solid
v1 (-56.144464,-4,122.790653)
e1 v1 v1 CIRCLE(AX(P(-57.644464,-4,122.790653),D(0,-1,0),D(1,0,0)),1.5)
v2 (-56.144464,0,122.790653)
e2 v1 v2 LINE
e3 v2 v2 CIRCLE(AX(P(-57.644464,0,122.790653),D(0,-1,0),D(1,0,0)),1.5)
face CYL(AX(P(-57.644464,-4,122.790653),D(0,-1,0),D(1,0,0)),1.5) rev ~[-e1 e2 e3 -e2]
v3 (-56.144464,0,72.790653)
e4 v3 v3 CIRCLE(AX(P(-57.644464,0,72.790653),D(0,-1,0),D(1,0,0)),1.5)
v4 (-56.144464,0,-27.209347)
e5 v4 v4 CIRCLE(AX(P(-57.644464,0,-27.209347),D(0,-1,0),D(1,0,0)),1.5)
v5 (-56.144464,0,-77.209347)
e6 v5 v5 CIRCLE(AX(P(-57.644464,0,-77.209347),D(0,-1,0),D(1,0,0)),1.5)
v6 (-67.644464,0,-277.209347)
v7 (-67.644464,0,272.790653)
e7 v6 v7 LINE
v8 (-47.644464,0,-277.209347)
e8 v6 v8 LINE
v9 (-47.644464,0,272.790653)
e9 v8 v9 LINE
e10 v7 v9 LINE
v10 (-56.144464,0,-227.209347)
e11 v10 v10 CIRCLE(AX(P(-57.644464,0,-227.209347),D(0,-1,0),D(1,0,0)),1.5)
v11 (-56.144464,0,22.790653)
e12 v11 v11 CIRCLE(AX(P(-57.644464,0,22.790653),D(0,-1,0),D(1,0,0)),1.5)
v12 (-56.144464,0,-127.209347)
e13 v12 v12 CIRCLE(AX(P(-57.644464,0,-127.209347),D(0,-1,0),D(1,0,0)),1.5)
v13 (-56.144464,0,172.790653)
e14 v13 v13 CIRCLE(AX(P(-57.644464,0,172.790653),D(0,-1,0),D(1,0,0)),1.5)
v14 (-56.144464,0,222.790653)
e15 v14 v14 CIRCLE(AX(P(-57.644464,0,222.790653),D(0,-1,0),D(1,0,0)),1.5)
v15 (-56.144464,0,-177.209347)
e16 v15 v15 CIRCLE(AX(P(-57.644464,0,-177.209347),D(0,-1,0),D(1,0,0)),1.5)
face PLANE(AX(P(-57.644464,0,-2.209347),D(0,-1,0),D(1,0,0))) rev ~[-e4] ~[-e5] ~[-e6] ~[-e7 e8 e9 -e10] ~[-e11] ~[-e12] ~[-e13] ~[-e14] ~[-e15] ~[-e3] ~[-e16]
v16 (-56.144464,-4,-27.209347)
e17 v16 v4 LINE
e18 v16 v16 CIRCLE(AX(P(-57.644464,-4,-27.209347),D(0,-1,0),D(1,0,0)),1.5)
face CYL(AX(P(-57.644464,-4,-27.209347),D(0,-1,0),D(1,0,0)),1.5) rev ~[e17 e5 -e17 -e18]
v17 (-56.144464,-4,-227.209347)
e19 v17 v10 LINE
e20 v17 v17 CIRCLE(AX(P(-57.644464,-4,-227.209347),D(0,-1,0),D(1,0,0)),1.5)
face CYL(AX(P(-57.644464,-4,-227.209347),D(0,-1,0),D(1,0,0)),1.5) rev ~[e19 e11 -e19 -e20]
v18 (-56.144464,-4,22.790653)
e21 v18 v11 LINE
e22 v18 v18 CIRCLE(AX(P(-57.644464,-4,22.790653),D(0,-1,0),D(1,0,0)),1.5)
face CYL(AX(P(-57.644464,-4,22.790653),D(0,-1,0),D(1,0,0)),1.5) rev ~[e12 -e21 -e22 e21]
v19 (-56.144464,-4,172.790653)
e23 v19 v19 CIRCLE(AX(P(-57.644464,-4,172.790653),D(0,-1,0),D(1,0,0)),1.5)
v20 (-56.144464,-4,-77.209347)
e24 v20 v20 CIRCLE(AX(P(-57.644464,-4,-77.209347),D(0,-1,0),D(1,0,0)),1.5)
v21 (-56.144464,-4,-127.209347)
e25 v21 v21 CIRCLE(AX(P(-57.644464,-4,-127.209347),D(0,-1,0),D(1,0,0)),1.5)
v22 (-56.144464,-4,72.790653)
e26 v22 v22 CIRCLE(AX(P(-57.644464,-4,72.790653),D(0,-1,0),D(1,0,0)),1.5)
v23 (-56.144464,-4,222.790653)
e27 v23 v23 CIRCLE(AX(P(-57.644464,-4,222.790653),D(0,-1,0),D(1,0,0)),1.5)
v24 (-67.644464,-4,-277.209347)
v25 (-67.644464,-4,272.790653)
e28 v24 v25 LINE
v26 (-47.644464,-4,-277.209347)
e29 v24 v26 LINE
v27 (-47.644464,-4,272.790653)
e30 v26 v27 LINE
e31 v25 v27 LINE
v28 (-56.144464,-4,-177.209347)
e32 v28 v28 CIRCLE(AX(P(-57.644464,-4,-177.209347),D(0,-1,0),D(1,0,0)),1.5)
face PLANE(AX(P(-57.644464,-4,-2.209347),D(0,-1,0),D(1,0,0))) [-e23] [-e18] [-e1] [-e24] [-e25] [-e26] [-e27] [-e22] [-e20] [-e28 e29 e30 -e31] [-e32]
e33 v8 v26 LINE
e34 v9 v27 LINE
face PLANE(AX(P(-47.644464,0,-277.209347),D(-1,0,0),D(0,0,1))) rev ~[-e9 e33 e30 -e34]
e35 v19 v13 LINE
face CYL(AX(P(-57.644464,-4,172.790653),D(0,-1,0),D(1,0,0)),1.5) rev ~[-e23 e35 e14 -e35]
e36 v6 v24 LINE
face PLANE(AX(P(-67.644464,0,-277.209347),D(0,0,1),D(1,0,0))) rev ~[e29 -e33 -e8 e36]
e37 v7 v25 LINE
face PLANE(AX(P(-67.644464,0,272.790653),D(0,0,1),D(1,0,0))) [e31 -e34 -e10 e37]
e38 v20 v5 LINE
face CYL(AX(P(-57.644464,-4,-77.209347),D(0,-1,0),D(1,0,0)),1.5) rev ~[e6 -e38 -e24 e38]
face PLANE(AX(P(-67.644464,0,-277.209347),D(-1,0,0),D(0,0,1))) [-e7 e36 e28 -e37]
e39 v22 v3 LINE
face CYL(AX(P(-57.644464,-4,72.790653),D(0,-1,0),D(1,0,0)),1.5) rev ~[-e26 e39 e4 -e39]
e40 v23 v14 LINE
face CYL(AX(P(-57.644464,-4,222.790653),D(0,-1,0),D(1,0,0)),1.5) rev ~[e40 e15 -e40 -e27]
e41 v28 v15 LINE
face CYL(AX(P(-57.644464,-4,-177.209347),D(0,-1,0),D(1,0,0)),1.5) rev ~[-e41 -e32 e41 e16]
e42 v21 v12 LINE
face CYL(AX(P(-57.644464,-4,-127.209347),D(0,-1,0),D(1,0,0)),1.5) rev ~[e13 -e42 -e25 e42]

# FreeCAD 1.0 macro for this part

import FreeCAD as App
import Part
import Sketcher
Q = App.Units.Quantity

doc = App.newDocument("Part")
params = doc.addObject("Spreadsheet::Sheet", "Params")
for row, (alias, value) in enumerate([
    ("sketch1_width", "20 mm"),
    ("sketch1_height", "550 mm"),
    ("pad1_length", "4 mm"),
    ("sketch2_diameter", "3 mm"),
    ("pocket1_length", "25 mm"),
], start=1):
    params.set(f"A{row}", alias)
    params.set(f"B{row}", "=" + value)
    params.setAlias(f"B{row}", alias)

body = doc.addObject("PartDesign::Body", "Body")

# Sketch on XZ plane
sketch1 = body.newObject("Sketcher::SketchObject", "Sketch")
sketch1.AttachmentSupport = (doc.getObject("XZ_Plane"), [""])
sketch1.MapMode = "FlatFace"
sketch1.addGeometry(Part.LineSegment(App.Vector(-68, 273, 0), App.Vector(-68, -277, 0)), False)
sketch1.addGeometry(Part.LineSegment(App.Vector(-68, -277, 0), App.Vector(-48, -277, 0)), False)
sketch1.addGeometry(Part.LineSegment(App.Vector(-48, -277, 0), App.Vector(-48, 273, 0)), False)
sketch1.addGeometry(Part.LineSegment(App.Vector(-48, 273, 0), App.Vector(-68, 273, 0)), False)
sketch1.addConstraint(Sketcher.Constraint("Coincident", 0, 2, 1, 1))
sketch1.addConstraint(Sketcher.Constraint("Coincident", 1, 2, 2, 1))
sketch1.addConstraint(Sketcher.Constraint("Coincident", 2, 2, 3, 1))
sketch1.addConstraint(Sketcher.Constraint("Coincident", 3, 2, 0, 1))
sketch1.addConstraint(Sketcher.Constraint("Vertical", 0))
sketch1.addConstraint(Sketcher.Constraint("Horizontal", 1))
sketch1.addConstraint(Sketcher.Constraint("Vertical", 2))
sketch1.addConstraint(Sketcher.Constraint("Horizontal", 3))
sketch1.addConstraint(Sketcher.Constraint("DistanceX", 1, 1, 1, 2, Q("20 mm")))
sketch1.addConstraint(Sketcher.Constraint("DistanceY", 0, 2, 0, 1, Q("550 mm")))
sketch1.addConstraint(Sketcher.Constraint("DistanceX", 0, 2, -1, 1, Q("67.644464 mm")))
sketch1.addConstraint(Sketcher.Constraint("DistanceY", 0, 2, -1, 1, Q("277.209347 mm")))
sketch1.setExpression("Constraints[8]", "Params.sketch1_width")
sketch1.setExpression("Constraints[9]", "Params.sketch1_height")
pad1 = body.newObject("PartDesign::Pad", "Pad")
pad1.Profile = sketch1
pad1.setExpression("Length", "Params.pad1_length")

# Sketch on XZ plane
sketch2 = body.newObject("Sketcher::SketchObject", "Sketch001")
sketch2.AttachmentSupport = (doc.getObject("XZ_Plane"), [""])
sketch2.MapMode = "FlatFace"
sketch2.AttachmentOffset = App.Placement(App.Vector(0, 0, 4), App.Rotation())
sketch2.addGeometry(Part.Circle(App.Vector(-32.6, 172.8, 0), App.Vector(0, 0, 1), 1.5), False)
sketch2.addGeometry(Part.Circle(App.Vector(-32.6, 122.8, 0), App.Vector(0, 0, 1), 1.5), False)
sketch2.addGeometry(Part.Circle(App.Vector(-57.6, 122.8, 0), App.Vector(0, 0, 1), 1.5), False)
sketch2.addGeometry(Part.Circle(App.Vector(-7.6, 222.8, 0), App.Vector(0, 0, 1), 1.5), False)
sketch2.addGeometry(Part.Circle(App.Vector(-7.6, 172.8, 0), App.Vector(0, 0, 1), 1.5), False)
sketch2.addGeometry(Part.Circle(App.Vector(-7.6, 122.8, 0), App.Vector(0, 0, 1), 1.5), False)
sketch2.addGeometry(Part.Circle(App.Vector(-57.6, 172.8, 0), App.Vector(0, 0, 1), 1.5), False)
sketch2.addGeometry(Part.Circle(App.Vector(-32.6, 222.8, 0), App.Vector(0, 0, 1), 1.5), False)
sketch2.addGeometry(Part.Circle(App.Vector(-57.6, 222.8, 0), App.Vector(0, 0, 1), 1.5), False)
sketch2.addGeometry(Part.Circle(App.Vector(-57.6, -27.2, 0), App.Vector(0, 0, 1), 1.5), False)
sketch2.addGeometry(Part.Circle(App.Vector(-32.6, -77.2, 0), App.Vector(0, 0, 1), 1.5), False)
sketch2.addGeometry(Part.Circle(App.Vector(-57.6, -127.2, 0), App.Vector(0, 0, 1), 1.5), False)
sketch2.addGeometry(Part.Circle(App.Vector(-57.6, -77.2, 0), App.Vector(0, 0, 1), 1.5), False)
sketch2.addGeometry(Part.Circle(App.Vector(-57.6, -227.2, 0), App.Vector(0, 0, 1), 1.5), False)
sketch2.addGeometry(Part.Circle(App.Vector(-57.6, 72.8, 0), App.Vector(0, 0, 1), 1.5), False)
sketch2.addGeometry(Part.Circle(App.Vector(-57.6, 22.8, 0), App.Vector(0, 0, 1), 1.5), False)
sketch2.addGeometry(Part.Circle(App.Vector(-57.6, -177.2, 0), App.Vector(0, 0, 1), 1.5), False)
sketch2.addGeometry(Part.Circle(App.Vector(-32.6, -27.2, 0), App.Vector(0, 0, 1), 1.5), False)
sketch2.addGeometry(Part.Circle(App.Vector(-32.6, 72.8, 0), App.Vector(0, 0, 1), 1.5), False)
sketch2.addGeometry(Part.Circle(App.Vector(-32.6, 22.8, 0), App.Vector(0, 0, 1), 1.5), False)
sketch2.addGeometry(Part.Circle(App.Vector(-32.6, -127.2, 0), App.Vector(0, 0, 1), 1.5), False)
sketch2.addGeometry(Part.Circle(App.Vector(-7.6, -227.2, 0), App.Vector(0, 0, 1), 1.5), False)
sketch2.addGeometry(Part.Circle(App.Vector(-32.6, -177.2, 0), App.Vector(0, 0, 1), 1.5), False)
sketch2.addGeometry(Part.Circle(App.Vector(-7.6, -177.2, 0), App.Vector(0, 0, 1), 1.5), False)
sketch2.addGeometry(Part.Circle(App.Vector(-32.6, -227.2, 0), App.Vector(0, 0, 1), 1.5), False)
sketch2.addGeometry(Part.Circle(App.Vector(-7.6, -127.2, 0), App.Vector(0, 0, 1), 1.5), False)
sketch2.addGeometry(Part.Circle(App.Vector(-7.6, -77.2, 0), App.Vector(0, 0, 1), 1.5), False)
sketch2.addGeometry(Part.Circle(App.Vector(-7.6, -27.2, 0), App.Vector(0, 0, 1), 1.5), False)
sketch2.addGeometry(Part.Circle(App.Vector(-7.6, 22.8, 0), App.Vector(0, 0, 1), 1.5), False)
sketch2.addGeometry(Part.Circle(App.Vector(-7.6, 72.8, 0), App.Vector(0, 0, 1), 1.5), False)
sketch2.addConstraint(Sketcher.Constraint("Equal", 0, 1))
sketch2.addConstraint(Sketcher.Constraint("Equal", 1, 2))
sketch2.addConstraint(Sketcher.Constraint("Equal", 2, 3))
sketch2.addConstraint(Sketcher.Constraint("Equal", 3, 4))
sketch2.addConstraint(Sketcher.Constraint("Equal", 4, 5))
sketch2.addConstraint(Sketcher.Constraint("Equal", 5, 6))
sketch2.addConstraint(Sketcher.Constraint("Equal", 6, 7))
sketch2.addConstraint(Sketcher.Constraint("Equal", 7, 8))
sketch2.addConstraint(Sketcher.Constraint("Equal", 8, 9))
sketch2.addConstraint(Sketcher.Constraint("Equal", 9, 10))
sketch2.addConstraint(Sketcher.Constraint("Equal", 10, 11))
sketch2.addConstraint(Sketcher.Constraint("Equal", 11, 12))
sketch2.addConstraint(Sketcher.Constraint("Equal", 12, 13))
sketch2.addConstraint(Sketcher.Constraint("Equal", 13, 14))
sketch2.addConstraint(Sketcher.Constraint("Equal", 14, 15))
sketch2.addConstraint(Sketcher.Constraint("Equal", 15, 16))
sketch2.addConstraint(Sketcher.Constraint("Equal", 16, 17))
sketch2.addConstraint(Sketcher.Constraint("Equal", 17, 18))
sketch2.addConstraint(Sketcher.Constraint("Equal", 18, 19))
sketch2.addConstraint(Sketcher.Constraint("Equal", 19, 20))
sketch2.addConstraint(Sketcher.Constraint("Equal", 20, 21))
sketch2.addConstraint(Sketcher.Constraint("Equal", 21, 22))
sketch2.addConstraint(Sketcher.Constraint("Equal", 22, 23))
sketch2.addConstraint(Sketcher.Constraint("Equal", 23, 24))
sketch2.addConstraint(Sketcher.Constraint("Equal", 24, 25))
sketch2.addConstraint(Sketcher.Constraint("Equal", 25, 26))
sketch2.addConstraint(Sketcher.Constraint("Equal", 26, 27))
sketch2.addConstraint(Sketcher.Constraint("Equal", 27, 28))
sketch2.addConstraint(Sketcher.Constraint("Equal", 28, 29))
sketch2.addConstraint(Sketcher.Constraint("Horizontal", 1, 3, 2, 3))
sketch2.addConstraint(Sketcher.Constraint("Horizontal", 0, 3, 4, 3))
sketch2.addConstraint(Sketcher.Constraint("Horizontal", 2, 3, 5, 3))
sketch2.addConstraint(Sketcher.Constraint("Horizontal", 4, 3, 6, 3))
sketch2.addConstraint(Sketcher.Constraint("Horizontal", 3, 3, 7, 3))
sketch2.addConstraint(Sketcher.Constraint("Horizontal", 7, 3, 8, 3))
sketch2.addConstraint(Sketcher.Constraint("Horizontal", 10, 3, 12, 3))
sketch2.addConstraint(Sketcher.Constraint("Horizontal", 9, 3, 17, 3))
sketch2.addConstraint(Sketcher.Constraint("Horizontal", 14, 3, 18, 3))
sketch2.addConstraint(Sketcher.Constraint("Horizontal", 15, 3, 19, 3))
sketch2.addConstraint(Sketcher.Constraint("Horizontal", 11, 3, 20, 3))
sketch2.addConstraint(Sketcher.Constraint("Horizontal", 13, 3, 21, 3))
sketch2.addConstraint(Sketcher.Constraint("Horizontal", 16, 3, 22, 3))
sketch2.addConstraint(Sketcher.Constraint("Horizontal", 22, 3, 23, 3))
sketch2.addConstraint(Sketcher.Constraint("Horizontal", 21, 3, 24, 3))
sketch2.addConstraint(Sketcher.Constraint("Horizontal", 20, 3, 25, 3))
sketch2.addConstraint(Sketcher.Constraint("Horizontal", 12, 3, 26, 3))
sketch2.addConstraint(Sketcher.Constraint("Horizontal", 17, 3, 27, 3))
sketch2.addConstraint(Sketcher.Constraint("Horizontal", 19, 3, 28, 3))
sketch2.addConstraint(Sketcher.Constraint("Horizontal", 18, 3, 29, 3))
sketch2.addConstraint(Sketcher.Constraint("Vertical", 0, 3, 1, 3))
sketch2.addConstraint(Sketcher.Constraint("Vertical", 3, 3, 4, 3))
sketch2.addConstraint(Sketcher.Constraint("Vertical", 4, 3, 5, 3))
sketch2.addConstraint(Sketcher.Constraint("Vertical", 2, 3, 6, 3))
sketch2.addConstraint(Sketcher.Constraint("Vertical", 1, 3, 7, 3))
sketch2.addConstraint(Sketcher.Constraint("Vertical", 6, 3, 8, 3))
sketch2.addConstraint(Sketcher.Constraint("Vertical", 8, 3, 9, 3))
sketch2.addConstraint(Sketcher.Constraint("Vertical", 7, 3, 10, 3))
sketch2.addConstraint(Sketcher.Constraint("Vertical", 9, 3, 11, 3))
sketch2.addConstraint(Sketcher.Constraint("Vertical", 11, 3, 12, 3))
sketch2.addConstraint(Sketcher.Constraint("Vertical", 12, 3, 13, 3))
sketch2.addConstraint(Sketcher.Constraint("Vertical", 13, 3, 14, 3))
sketch2.addConstraint(Sketcher.Constraint("Vertical", 14, 3, 15, 3))
sketch2.addConstraint(Sketcher.Constraint("Vertical", 15, 3, 16, 3))
sketch2.addConstraint(Sketcher.Constraint("Vertical", 10, 3, 17, 3))
sketch2.addConstraint(Sketcher.Constraint("Vertical", 17, 3, 18, 3))
sketch2.addConstraint(Sketcher.Constraint("Vertical", 18, 3, 19, 3))
sketch2.addConstraint(Sketcher.Constraint("Vertical", 19, 3, 20, 3))
sketch2.addConstraint(Sketcher.Constraint("Vertical", 5, 3, 21, 3))
sketch2.addConstraint(Sketcher.Constraint("Vertical", 20, 3, 22, 3))
sketch2.addConstraint(Sketcher.Constraint("Vertical", 21, 3, 23, 3))
sketch2.addConstraint(Sketcher.Constraint("Vertical", 22, 3, 24, 3))
sketch2.addConstraint(Sketcher.Constraint("Vertical", 23, 3, 25, 3))
sketch2.addConstraint(Sketcher.Constraint("Vertical", 25, 3, 26, 3))
sketch2.addConstraint(Sketcher.Constraint("Vertical", 26, 3, 27, 3))
sketch2.addConstraint(Sketcher.Constraint("Vertical", 27, 3, 28, 3))
sketch2.addConstraint(Sketcher.Constraint("Vertical", 28, 3, 29, 3))
sketch2.addConstraint(Sketcher.Constraint("Diameter", 0, Q("3 mm")))
sketch2.addConstraint(Sketcher.Constraint("DistanceY", 1, 3, 0, 3, Q("50 mm")))
sketch2.addConstraint(Sketcher.Constraint("DistanceX", 2, 3, 1, 3, Q("25 mm")))
sketch2.addConstraint(Sketcher.Constraint("DistanceX", 0, 3, 3, 3, Q("25 mm")))
sketch2.addConstraint(Sketcher.Constraint("DistanceY", 0, 3, 3, 3, Q("50 mm")))
sketch2.addConstraint(Sketcher.Constraint("DistanceY", 9, 3, 2, 3, Q("150 mm")))
sketch2.addConstraint(Sketcher.Constraint("DistanceY", 10, 3, 9, 3, Q("50 mm")))
sketch2.addConstraint(Sketcher.Constraint("DistanceY", 11, 3, 10, 3, Q("50 mm")))
sketch2.addConstraint(Sketcher.Constraint("DistanceY", 13, 3, 11, 3, Q("100 mm")))
sketch2.addConstraint(Sketcher.Constraint("DistanceY", 14, 3, 2, 3, Q("50 mm")))
sketch2.addConstraint(Sketcher.Constraint("DistanceY", 9, 3, 15, 3, Q("50 mm")))
sketch2.addConstraint(Sketcher.Constraint("DistanceY", 13, 3, 16, 3, Q("50 mm")))
sketch2.addConstraint(Sketcher.Constraint("DistanceX", 0, 3, -1, 1, Q("32.644464 mm")))
sketch2.addConstraint(Sketcher.Constraint("DistanceY", -1, 1, 0, 3, Q("172.790653 mm")))
sketch2.setExpression("Constraints[76]", "Params.sketch2_diameter")
pocket1 = body.newObject("PartDesign::Pocket", "Pocket")
pocket1.Profile = sketch2
pocket1.setExpression("Length", "Params.pocket1_length")

doc.recompute()
